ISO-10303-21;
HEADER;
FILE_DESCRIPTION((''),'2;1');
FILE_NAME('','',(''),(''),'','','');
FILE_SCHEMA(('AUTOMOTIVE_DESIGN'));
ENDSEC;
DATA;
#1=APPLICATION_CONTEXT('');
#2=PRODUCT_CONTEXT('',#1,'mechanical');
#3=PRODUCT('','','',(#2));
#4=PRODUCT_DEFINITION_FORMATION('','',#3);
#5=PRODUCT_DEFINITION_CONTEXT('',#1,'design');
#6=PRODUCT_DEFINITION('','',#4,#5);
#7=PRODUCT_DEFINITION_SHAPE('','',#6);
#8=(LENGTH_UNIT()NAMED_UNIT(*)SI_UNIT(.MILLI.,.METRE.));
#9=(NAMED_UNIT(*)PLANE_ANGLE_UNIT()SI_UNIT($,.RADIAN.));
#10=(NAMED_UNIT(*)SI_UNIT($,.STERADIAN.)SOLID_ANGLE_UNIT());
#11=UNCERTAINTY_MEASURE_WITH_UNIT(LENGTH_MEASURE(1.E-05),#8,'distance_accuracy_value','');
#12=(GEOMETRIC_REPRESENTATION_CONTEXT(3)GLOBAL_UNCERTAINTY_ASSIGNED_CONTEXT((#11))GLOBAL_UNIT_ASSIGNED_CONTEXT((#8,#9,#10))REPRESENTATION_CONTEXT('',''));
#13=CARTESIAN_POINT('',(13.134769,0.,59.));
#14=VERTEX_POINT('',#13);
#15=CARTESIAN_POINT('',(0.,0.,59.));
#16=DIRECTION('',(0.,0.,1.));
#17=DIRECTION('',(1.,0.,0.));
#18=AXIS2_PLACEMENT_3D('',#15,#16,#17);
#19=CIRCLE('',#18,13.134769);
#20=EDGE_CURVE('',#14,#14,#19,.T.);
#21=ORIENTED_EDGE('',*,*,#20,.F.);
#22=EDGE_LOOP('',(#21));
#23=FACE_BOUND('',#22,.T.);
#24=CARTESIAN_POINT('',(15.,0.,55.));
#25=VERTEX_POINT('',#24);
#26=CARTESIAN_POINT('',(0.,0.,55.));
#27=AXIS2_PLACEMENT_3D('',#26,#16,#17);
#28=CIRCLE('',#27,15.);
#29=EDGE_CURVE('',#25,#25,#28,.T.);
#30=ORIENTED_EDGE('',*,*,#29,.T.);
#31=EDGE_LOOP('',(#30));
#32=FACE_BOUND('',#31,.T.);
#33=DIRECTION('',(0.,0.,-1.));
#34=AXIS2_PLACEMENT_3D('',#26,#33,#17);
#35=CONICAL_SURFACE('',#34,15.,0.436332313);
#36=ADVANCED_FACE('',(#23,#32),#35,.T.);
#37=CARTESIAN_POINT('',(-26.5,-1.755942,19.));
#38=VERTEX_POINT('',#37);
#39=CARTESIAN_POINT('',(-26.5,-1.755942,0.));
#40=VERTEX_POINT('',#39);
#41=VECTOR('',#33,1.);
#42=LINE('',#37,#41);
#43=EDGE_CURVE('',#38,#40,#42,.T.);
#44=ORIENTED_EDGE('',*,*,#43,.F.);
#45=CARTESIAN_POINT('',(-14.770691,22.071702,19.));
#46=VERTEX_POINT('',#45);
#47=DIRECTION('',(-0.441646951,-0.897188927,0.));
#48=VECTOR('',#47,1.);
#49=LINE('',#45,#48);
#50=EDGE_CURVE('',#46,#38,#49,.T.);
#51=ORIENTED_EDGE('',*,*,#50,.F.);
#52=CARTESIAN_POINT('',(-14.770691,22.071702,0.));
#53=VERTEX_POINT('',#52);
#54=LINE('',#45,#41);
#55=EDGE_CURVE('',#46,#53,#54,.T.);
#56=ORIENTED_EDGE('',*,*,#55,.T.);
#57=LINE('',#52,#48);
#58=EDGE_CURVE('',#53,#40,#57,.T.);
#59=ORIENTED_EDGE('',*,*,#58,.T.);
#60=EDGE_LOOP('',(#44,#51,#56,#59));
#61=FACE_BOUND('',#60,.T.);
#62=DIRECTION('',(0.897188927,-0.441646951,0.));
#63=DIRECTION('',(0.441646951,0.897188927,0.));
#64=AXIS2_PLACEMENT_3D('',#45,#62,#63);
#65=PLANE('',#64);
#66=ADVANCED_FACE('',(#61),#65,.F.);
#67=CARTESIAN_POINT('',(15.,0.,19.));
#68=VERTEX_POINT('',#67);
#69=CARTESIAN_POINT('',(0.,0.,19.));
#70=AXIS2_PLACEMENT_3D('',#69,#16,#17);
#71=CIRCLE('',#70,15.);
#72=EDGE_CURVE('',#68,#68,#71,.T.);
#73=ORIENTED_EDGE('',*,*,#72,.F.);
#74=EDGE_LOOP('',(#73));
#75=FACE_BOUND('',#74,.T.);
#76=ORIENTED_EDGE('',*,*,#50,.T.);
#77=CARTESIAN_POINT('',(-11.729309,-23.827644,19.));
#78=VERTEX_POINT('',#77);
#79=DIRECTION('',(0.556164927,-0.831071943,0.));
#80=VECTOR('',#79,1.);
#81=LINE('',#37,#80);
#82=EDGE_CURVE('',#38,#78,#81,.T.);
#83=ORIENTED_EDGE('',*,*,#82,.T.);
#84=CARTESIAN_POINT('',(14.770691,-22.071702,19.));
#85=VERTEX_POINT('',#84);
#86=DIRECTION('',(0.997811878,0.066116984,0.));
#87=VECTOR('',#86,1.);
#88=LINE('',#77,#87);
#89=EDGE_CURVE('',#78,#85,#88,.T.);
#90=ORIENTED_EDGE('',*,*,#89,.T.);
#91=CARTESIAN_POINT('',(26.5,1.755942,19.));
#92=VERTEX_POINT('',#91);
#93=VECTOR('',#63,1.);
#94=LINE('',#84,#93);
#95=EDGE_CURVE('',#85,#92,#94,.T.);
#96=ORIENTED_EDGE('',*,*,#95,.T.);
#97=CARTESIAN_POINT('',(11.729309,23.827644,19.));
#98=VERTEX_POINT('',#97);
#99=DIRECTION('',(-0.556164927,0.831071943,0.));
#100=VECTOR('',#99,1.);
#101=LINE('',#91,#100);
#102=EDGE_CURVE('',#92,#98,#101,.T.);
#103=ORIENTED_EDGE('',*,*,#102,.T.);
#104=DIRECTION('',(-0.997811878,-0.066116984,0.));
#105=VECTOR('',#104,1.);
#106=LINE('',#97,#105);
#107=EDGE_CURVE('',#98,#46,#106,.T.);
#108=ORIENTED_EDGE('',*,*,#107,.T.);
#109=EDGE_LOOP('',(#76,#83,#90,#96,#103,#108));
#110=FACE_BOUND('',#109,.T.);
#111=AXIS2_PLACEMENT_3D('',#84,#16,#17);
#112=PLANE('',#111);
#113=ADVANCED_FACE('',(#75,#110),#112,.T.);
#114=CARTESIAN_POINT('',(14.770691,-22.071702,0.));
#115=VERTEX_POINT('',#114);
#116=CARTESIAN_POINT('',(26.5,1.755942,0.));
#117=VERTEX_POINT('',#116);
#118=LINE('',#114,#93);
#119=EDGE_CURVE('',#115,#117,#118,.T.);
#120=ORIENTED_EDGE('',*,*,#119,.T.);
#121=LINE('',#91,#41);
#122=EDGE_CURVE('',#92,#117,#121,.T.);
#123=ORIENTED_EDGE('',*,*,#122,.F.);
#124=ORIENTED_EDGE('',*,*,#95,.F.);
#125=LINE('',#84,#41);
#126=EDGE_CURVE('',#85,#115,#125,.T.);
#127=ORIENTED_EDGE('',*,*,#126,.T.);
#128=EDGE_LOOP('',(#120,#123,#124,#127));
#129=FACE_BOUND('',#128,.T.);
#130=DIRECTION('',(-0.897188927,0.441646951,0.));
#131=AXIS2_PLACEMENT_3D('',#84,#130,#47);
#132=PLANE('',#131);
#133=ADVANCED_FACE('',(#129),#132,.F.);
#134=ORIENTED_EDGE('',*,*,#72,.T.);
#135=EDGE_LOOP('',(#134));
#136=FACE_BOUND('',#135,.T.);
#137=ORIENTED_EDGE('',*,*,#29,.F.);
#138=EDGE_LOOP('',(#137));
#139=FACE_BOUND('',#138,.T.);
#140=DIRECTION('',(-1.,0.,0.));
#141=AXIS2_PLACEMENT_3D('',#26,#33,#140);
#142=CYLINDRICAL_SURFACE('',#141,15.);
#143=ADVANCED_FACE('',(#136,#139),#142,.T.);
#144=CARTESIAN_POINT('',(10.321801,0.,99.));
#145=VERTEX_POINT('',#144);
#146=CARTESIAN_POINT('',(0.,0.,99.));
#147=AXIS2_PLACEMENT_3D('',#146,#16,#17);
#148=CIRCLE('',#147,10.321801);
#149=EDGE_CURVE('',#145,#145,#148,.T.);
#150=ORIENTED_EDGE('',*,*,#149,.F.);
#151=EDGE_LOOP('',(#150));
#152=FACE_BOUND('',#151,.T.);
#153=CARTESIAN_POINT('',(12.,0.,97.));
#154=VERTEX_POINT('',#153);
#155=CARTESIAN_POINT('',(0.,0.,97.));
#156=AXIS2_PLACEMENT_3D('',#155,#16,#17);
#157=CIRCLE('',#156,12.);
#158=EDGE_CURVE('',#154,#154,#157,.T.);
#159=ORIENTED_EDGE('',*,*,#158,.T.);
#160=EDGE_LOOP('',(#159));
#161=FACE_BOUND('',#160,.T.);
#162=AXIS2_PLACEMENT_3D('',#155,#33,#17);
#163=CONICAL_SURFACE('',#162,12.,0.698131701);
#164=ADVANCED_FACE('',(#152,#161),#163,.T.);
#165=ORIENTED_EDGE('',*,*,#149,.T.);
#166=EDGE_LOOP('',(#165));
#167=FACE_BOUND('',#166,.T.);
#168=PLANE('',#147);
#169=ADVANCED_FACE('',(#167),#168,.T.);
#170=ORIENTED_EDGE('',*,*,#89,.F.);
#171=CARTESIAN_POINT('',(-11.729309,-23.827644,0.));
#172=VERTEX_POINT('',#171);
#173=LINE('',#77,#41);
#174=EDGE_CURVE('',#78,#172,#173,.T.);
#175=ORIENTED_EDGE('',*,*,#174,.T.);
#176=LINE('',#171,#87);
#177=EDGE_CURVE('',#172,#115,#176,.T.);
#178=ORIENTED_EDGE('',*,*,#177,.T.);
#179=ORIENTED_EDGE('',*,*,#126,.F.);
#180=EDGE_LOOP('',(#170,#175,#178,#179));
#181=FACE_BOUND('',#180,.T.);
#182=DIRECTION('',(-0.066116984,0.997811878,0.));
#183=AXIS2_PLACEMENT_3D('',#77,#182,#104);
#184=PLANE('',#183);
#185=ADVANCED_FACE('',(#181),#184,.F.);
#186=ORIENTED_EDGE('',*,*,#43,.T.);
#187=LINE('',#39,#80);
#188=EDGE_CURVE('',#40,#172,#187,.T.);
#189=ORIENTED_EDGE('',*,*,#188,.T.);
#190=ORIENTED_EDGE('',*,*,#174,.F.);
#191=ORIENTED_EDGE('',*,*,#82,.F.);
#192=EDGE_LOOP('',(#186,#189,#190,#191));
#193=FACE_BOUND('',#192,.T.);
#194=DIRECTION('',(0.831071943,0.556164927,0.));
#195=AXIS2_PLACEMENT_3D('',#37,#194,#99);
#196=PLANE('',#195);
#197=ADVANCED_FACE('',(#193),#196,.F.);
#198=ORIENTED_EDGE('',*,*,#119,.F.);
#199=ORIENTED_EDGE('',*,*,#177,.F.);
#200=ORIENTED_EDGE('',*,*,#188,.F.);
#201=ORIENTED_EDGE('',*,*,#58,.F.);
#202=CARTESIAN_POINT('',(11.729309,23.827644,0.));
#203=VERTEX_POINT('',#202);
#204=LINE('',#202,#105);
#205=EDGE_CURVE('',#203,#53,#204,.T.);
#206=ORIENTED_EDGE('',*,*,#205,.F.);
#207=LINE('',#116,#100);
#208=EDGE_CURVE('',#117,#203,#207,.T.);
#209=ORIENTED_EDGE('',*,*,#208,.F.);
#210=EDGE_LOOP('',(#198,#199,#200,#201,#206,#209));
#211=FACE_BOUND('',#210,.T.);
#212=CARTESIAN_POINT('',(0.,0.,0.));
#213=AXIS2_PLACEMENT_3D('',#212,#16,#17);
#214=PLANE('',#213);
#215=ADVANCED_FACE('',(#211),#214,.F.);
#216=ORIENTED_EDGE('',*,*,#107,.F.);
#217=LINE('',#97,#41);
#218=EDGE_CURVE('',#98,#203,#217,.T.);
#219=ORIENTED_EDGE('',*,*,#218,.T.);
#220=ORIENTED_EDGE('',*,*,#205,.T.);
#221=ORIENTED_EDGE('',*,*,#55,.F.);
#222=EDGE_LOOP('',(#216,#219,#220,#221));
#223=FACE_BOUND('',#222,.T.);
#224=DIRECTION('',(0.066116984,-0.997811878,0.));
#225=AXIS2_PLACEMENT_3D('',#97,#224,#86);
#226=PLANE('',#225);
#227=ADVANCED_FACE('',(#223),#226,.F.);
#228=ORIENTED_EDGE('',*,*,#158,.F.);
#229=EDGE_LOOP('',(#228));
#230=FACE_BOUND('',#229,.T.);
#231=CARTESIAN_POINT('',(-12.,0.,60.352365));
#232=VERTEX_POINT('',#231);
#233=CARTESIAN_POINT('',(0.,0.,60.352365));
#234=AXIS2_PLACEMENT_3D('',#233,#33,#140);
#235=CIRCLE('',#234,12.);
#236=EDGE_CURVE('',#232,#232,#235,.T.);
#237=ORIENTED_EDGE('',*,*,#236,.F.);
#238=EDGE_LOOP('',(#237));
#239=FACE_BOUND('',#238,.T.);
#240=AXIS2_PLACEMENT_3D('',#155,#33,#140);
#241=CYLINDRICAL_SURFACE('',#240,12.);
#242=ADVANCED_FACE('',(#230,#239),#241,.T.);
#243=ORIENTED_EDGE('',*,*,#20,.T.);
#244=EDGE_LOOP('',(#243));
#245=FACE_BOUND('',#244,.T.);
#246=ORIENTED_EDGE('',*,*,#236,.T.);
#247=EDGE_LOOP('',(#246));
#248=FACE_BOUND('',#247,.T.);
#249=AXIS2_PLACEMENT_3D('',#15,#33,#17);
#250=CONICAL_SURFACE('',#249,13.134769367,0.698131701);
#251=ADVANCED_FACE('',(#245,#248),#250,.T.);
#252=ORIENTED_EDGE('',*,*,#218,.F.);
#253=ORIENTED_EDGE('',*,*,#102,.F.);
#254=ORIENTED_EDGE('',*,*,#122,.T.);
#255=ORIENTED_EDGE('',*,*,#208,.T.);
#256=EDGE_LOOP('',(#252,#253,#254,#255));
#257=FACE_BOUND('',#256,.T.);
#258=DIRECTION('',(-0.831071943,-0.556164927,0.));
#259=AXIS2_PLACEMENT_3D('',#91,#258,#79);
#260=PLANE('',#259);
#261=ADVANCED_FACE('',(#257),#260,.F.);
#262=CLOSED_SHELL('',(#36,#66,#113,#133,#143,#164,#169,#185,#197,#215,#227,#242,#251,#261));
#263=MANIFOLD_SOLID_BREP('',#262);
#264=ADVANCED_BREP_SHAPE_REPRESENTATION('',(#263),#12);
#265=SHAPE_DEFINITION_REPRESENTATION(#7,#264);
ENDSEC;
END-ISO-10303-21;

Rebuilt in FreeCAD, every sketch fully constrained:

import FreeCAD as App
import Part
import Sketcher
Q = App.Units.Quantity


def add_polygon(sketch, points):
    """Adds a closed chain of lines whose ends are joined by coincident constraints."""
    first, n = sketch.GeometryCount, len(points)
    for a, b in zip(points, points[1:] + points[:1]):
        sketch.addGeometry(Part.LineSegment(App.Vector(*a, 0), App.Vector(*b, 0)), False)
    for i in range(n):
        sketch.addConstraint(Sketcher.Constraint("Coincident", first + i, 2, first + (i + 1) % n, 1))

doc = App.newDocument("Part")
params = doc.addObject("Spreadsheet::Sheet", "Params")
for row, (alias, value) in enumerate([
    ("sketch1_diameter", "30 mm"),
    ("pad1_length", "1 mm"),
    ("pad2_length", "19 mm"),
    ("sketch3_diameter", "30 mm"),
    ("pad3_length", "36 mm"),
    ("sketch4_diameter", "30 mm"),
    ("pad4_length", "4 mm"),
    ("pad4_taper", "-25 deg"),
    ("sketch5_diameter", "24 mm"),
    ("pad5_length", "38 mm"),
    ("pad6_length", "2 mm"),
    ("pad6_taper", "-40 deg"),
    ("sketch7_diameter", "24 mm"),
    ("pad7_length", "2 mm"),
    ("pad7_taper", "-40 deg"),
], start=1):
    params.set(f"A{row}", alias)
    params.set(f"B{row}", "=" + value)
    params.setAlias(f"B{row}", alias)

body = doc.addObject("PartDesign::Body", "Body")

# Sketch on XY plane
sketch1 = body.newObject("Sketcher::SketchObject", "Sketch")
sketch1.AttachmentSupport = (doc.getObject("XY_Plane"), [""])
sketch1.MapMode = "FlatFace"
sketch1.addGeometry(Part.Circle(App.Vector(0, 0, 0), App.Vector(0, 0, 1), 15), False)
sketch1.addConstraint([
    Sketcher.Constraint("Coincident", 0, 3, -1, 1),
    Sketcher.Constraint("Diameter", 0, Q("30 mm")),
])
sketch1.setExpression("Constraints[1]", "Params.sketch1_diameter")
pad1 = body.newObject("PartDesign::Pad", "Pad")
pad1.Profile = sketch1
pad1.setExpression("Length", "Params.pad1_length")

# Sketch on XY plane
sketch2 = body.newObject("Sketcher::SketchObject", "Sketch001")
sketch2.AttachmentSupport = (doc.getObject("XY_Plane"), [""])
sketch2.MapMode = "FlatFace"
add_polygon(sketch2, [(15, -22), (26, 2), (12, 24), (-15, 22), (-26, -2), (-12, -24)])  # lines 0-5
sketch2.addConstraint([
    Sketcher.Constraint("Symmetric", 0, 2, 3, 2, -1, 1),
    Sketcher.Constraint("Symmetric", 1, 2, 4, 2, -1, 1),
    Sketcher.Constraint("Symmetric", 2, 2, 5, 2, -1, 1),
    Sketcher.Constraint("Equal", 0, 1),
    Sketcher.Constraint("Equal", 1, 2),
    Sketcher.Constraint("DistanceX", 3, 2, 0, 2, Q("53 mm")),
    Sketcher.Constraint("DistanceX", 2, 2, 1, 2, Q("26.5 mm")),
    Sketcher.Constraint("DistanceX", -1, 1, 1, 2, Q("11.729309 mm")),
    Sketcher.Constraint("DistanceY", 0, 2, 2, 2, Q("20.31576 mm")),
])
pad2 = body.newObject("PartDesign::Pad", "Pad001")
pad2.Profile = sketch2
pad2.setExpression("Length", "Params.pad2_length")

# Sketch on XY plane
sketch3 = body.newObject("Sketcher::SketchObject", "Sketch002")
sketch3.AttachmentSupport = (doc.getObject("XY_Plane"), [""])
sketch3.MapMode = "FlatFace"
sketch3.AttachmentOffset = App.Placement(App.Vector(0, 0, 19), App.Rotation())
sketch3.addGeometry(Part.Circle(App.Vector(0, 0, 0), App.Vector(0, 0, 1), 15), False)
sketch3.addConstraint([
    Sketcher.Constraint("Coincident", 0, 3, -1, 1),
    Sketcher.Constraint("Diameter", 0, Q("30 mm")),
])
sketch3.setExpression("Constraints[1]", "Params.sketch3_diameter")
pad3 = body.newObject("PartDesign::Pad", "Pad002")
pad3.Profile = sketch3
pad3.setExpression("Length", "Params.pad3_length")

# Sketch on XY plane
sketch4 = body.newObject("Sketcher::SketchObject", "Sketch003")
sketch4.AttachmentSupport = (doc.getObject("XY_Plane"), [""])
sketch4.MapMode = "FlatFace"
sketch4.AttachmentOffset = App.Placement(App.Vector(0, 0, 55), App.Rotation())
sketch4.addGeometry(Part.Circle(App.Vector(0, 0, 0), App.Vector(0, 0, 1), 15), False)
sketch4.addConstraint([
    Sketcher.Constraint("Coincident", 0, 3, -1, 1),
    Sketcher.Constraint("Diameter", 0, Q("30 mm")),
])
sketch4.setExpression("Constraints[1]", "Params.sketch4_diameter")
pad4 = body.newObject("PartDesign::Pad", "Pad003")
pad4.Profile = sketch4
pad4.setExpression("Length", "Params.pad4_length")
pad4.setExpression("TaperAngle", "Params.pad4_taper")

# Sketch on XY plane
sketch5 = body.newObject("Sketcher::SketchObject", "Sketch004")
sketch5.AttachmentSupport = (doc.getObject("XY_Plane"), [""])
sketch5.MapMode = "FlatFace"
sketch5.AttachmentOffset = App.Placement(App.Vector(0, 0, 59), App.Rotation())
sketch5.addGeometry(Part.Circle(App.Vector(0, 0, 0), App.Vector(0, 0, 1), 12), False)
sketch5.addConstraint([
    Sketcher.Constraint("Coincident", 0, 3, -1, 1),
    Sketcher.Constraint("Diameter", 0, Q("24 mm")),
])
sketch5.setExpression("Constraints[1]", "Params.sketch5_diameter")
pad5 = body.newObject("PartDesign::Pad", "Pad004")
pad5.Profile = sketch5
pad5.setExpression("Length", "Params.pad5_length")

# Sketch on XY plane
sketch6 = body.newObject("Sketcher::SketchObject", "Sketch005")
sketch6.AttachmentSupport = (doc.getObject("XY_Plane"), [""])
sketch6.MapMode = "FlatFace"
sketch6.AttachmentOffset = App.Placement(App.Vector(0, 0, 59), App.Rotation())
sketch6.addGeometry(Part.Circle(App.Vector(0, 0, 0), App.Vector(0, 0, 1), 13), False)
sketch6.addConstraint([
    Sketcher.Constraint("Coincident", 0, 3, -1, 1),
    Sketcher.Constraint("Diameter", 0, Q("26.269539 mm")),
])
pad6 = body.newObject("PartDesign::Pad", "Pad005")
pad6.Profile = sketch6
pad6.setExpression("Length", "Params.pad6_length")
pad6.setExpression("TaperAngle", "Params.pad6_taper")

# Sketch on XY plane
sketch7 = body.newObject("Sketcher::SketchObject", "Sketch006")
sketch7.AttachmentSupport = (doc.getObject("XY_Plane"), [""])
sketch7.MapMode = "FlatFace"
sketch7.AttachmentOffset = App.Placement(App.Vector(0, 0, 97), App.Rotation())
sketch7.addGeometry(Part.Circle(App.Vector(0, 0, 0), App.Vector(0, 0, 1), 12), False)
sketch7.addConstraint([
    Sketcher.Constraint("Coincident", 0, 3, -1, 1),
    Sketcher.Constraint("Diameter", 0, Q("24 mm")),
])
sketch7.setExpression("Constraints[1]", "Params.sketch7_diameter")
pad7 = body.newObject("PartDesign::Pad", "Pad006")
pad7.Profile = sketch7
pad7.setExpression("Length", "Params.pad7_length")
pad7.setExpression("TaperAngle", "Params.pad7_taper")

doc.recompute()
